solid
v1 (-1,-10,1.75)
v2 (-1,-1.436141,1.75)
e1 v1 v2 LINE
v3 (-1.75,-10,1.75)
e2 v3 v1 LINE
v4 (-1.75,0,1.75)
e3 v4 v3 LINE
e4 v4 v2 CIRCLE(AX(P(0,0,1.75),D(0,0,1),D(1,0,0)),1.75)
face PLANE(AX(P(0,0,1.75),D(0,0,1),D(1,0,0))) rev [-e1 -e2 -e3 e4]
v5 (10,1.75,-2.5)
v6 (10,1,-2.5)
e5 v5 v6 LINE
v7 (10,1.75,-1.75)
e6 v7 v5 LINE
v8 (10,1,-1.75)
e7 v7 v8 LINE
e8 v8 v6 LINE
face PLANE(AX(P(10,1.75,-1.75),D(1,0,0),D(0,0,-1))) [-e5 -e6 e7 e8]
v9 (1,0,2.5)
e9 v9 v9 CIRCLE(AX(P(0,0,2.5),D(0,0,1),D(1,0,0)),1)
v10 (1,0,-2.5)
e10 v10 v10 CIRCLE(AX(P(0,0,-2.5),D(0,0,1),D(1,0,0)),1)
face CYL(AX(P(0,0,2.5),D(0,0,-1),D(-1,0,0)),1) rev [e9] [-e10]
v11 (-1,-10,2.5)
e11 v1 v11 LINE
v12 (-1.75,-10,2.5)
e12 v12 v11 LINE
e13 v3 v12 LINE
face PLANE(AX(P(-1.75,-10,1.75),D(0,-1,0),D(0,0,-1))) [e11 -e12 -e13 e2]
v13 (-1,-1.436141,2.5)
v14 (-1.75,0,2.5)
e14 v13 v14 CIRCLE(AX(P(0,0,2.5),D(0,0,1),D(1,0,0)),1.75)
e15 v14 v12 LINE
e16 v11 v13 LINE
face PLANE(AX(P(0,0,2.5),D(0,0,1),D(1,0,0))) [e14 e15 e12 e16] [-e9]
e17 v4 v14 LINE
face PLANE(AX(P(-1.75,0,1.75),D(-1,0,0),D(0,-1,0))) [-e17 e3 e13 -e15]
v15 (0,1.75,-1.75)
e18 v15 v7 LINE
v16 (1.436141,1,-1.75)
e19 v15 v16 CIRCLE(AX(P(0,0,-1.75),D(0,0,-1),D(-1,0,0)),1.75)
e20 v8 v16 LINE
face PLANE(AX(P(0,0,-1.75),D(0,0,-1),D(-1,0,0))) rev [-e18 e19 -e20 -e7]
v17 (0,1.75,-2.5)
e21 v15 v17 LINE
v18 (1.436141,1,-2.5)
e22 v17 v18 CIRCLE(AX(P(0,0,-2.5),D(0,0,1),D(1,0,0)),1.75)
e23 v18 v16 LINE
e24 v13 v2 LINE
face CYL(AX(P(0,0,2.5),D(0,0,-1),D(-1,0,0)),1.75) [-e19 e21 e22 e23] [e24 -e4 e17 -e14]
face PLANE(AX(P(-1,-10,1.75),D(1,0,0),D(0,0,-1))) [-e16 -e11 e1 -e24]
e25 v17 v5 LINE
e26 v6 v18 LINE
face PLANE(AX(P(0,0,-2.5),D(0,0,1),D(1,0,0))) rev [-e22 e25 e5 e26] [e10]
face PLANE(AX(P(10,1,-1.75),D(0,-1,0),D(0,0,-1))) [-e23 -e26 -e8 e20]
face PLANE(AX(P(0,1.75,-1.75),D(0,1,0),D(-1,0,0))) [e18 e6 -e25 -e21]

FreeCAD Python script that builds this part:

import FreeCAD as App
import Part
import Sketcher
from FreeCAD import Vector

doc = App.newDocument("Part")
body = doc.addObject("PartDesign::Body", "Body")

# Sketch on XY plane
sketch1 = body.newObject("Sketcher::SketchObject", "Sketch")
sketch1.AttachmentSupport = (doc.getObject("XY_Plane"), [""])
sketch1.MapMode = "FlatFace"
sketch1.addGeometry([
    Part.Circle(Vector(0, 0, 0), Vector(0, 0, 1), 1.8),
    Part.Circle(Vector(0, 0, 0), Vector(0, 0, 1), 1),
], False)
sketch1.addConstraint([
    Sketcher.Constraint("Coincident", 0, 3, -1, 1),
    Sketcher.Constraint("Coincident", 1, 3, -1, 1),
    Sketcher.Constraint("Diameter", 1, 2.0),
    Sketcher.Constraint("Diameter", 0, 3.5),
])
pad1 = body.newObject("PartDesign::Pad", "Pad")
pad1.Profile = sketch1
pad1.Length = 5
pad1.Midplane = True

# Sketch on XY plane
sketch2 = body.newObject("Sketcher::SketchObject", "Sketch001")
sketch2.AttachmentSupport = (doc.getObject("XY_Plane"), [""])
sketch2.MapMode = "FlatFace"
sketch2.AttachmentOffset = App.Placement(Vector(0, 0, 2.5), App.Rotation())
sketch2.addGeometry([
    Part.LineSegment(Vector(-1.8, 0, 0), Vector(-1.8, -10, 0)),
    Part.LineSegment(Vector(-1.8, -10, 0), Vector(-1, -10, 0)),
    Part.LineSegment(Vector(-1, -10, 0), Vector(-1, 0, 0)),
    Part.LineSegment(Vector(-1, 0, 0), Vector(-1.8, 0, 0)),
], False)
sketch2.addConstraint([
    Sketcher.Constraint("Coincident", 0, 2, 1, 1),
    Sketcher.Constraint("Coincident", 1, 2, 2, 1),
    Sketcher.Constraint("Coincident", 2, 2, 3, 1),
    Sketcher.Constraint("Coincident", 3, 2, 0, 1),
    Sketcher.Constraint("Vertical", 0),
    Sketcher.Constraint("Horizontal", 1),
    Sketcher.Constraint("Vertical", 2),
    Sketcher.Constraint("Horizontal", 3),
    Sketcher.Constraint("PointOnObject", 2, 2, -1),
    Sketcher.Constraint("DistanceY", 0, 2, 0, 1, 10.0),
    Sketcher.Constraint("DistanceX", 1, 2, -1, 1, 1.0),
    Sketcher.Constraint("DistanceX", 1, 1, 1, 2, 0.75),
])
pad2 = body.newObject("PartDesign::Pad", "Pad001")
pad2.Profile = sketch2
pad2.Length = 0.75
pad2.Reversed = True

# Sketch on XY plane
sketch3 = body.newObject("Sketcher::SketchObject", "Sketch002")
sketch3.AttachmentSupport = (doc.getObject("XY_Plane"), [""])
sketch3.MapMode = "FlatFace"
sketch3.AttachmentOffset = App.Placement(Vector(0, 0, -2.5), App.Rotation())
sketch3.addGeometry([
    Part.LineSegment(Vector(10, 1.8, 0), Vector(10, 1, 0)),
    Part.LineSegment(Vector(10, 1, 0), Vector(0, 1, 0)),
    Part.LineSegment(Vector(0, 1, 0), Vector(0, 1.8, 0)),
    Part.LineSegment(Vector(0, 1.8, 0), Vector(10, 1.8, 0)),
], False)
sketch3.addConstraint([
    Sketcher.Constraint("Coincident", 0, 2, 1, 1),
    Sketcher.Constraint("Coincident", 1, 2, 2, 1),
    Sketcher.Constraint("Coincident", 2, 2, 3, 1),
    Sketcher.Constraint("Coincident", 3, 2, 0, 1),
    Sketcher.Constraint("Vertical", 0),
    Sketcher.Constraint("Horizontal", 1),
    Sketcher.Constraint("Vertical", 2),
    Sketcher.Constraint("Horizontal", 3),
    Sketcher.Constraint("PointOnObject", 1, 2, -2),
    Sketcher.Constraint("DistanceX", 1, 2, 1, 1, 10.0),
    Sketcher.Constraint("DistanceY", -1, 1, 0, 2, 1.0),
    Sketcher.Constraint("DistanceY", 0, 2, 0, 1, 0.75),
])
pad3 = body.newObject("PartDesign::Pad", "Pad002")
pad3.Profile = sketch3
pad3.Length = 0.75

doc.recompute()
